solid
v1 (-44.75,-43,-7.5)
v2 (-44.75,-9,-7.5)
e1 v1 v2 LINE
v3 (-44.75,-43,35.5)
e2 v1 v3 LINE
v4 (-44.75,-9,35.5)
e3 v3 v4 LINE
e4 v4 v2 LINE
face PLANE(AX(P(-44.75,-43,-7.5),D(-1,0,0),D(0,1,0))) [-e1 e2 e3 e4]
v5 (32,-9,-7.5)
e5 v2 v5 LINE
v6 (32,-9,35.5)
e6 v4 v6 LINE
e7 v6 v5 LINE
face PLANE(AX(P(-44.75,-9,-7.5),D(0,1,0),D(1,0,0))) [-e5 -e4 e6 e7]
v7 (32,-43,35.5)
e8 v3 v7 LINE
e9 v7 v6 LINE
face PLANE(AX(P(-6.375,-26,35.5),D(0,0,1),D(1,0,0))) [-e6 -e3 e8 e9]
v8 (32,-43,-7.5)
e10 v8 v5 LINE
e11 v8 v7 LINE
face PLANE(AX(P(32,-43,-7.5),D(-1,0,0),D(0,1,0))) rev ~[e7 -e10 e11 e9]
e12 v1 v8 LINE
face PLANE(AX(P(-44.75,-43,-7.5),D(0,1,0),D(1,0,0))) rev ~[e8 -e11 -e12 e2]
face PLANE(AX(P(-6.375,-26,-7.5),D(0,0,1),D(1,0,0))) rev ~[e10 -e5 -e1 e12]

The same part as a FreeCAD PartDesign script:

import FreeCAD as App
import Part
import Sketcher
from FreeCAD import Vector

doc = App.newDocument("Part")
body = doc.addObject("PartDesign::Body", "Body")

# Sketch on XY plane
sketch1 = body.newObject("Sketcher::SketchObject", "Sketch")
sketch1.AttachmentSupport = (doc.getObject("XY_Plane"), [""])
sketch1.MapMode = "FlatFace"
sketch1.AttachmentOffset = App.Placement(Vector(0, 0, -3), App.Rotation())
sketch1.addGeometry(Part.LineSegment(Vector(-45, -9, 0), Vector(-45, -43, 0)), False)
sketch1.addGeometry(Part.LineSegment(Vector(-45, -43, 0), Vector(32, -43, 0)), False)
sketch1.addGeometry(Part.LineSegment(Vector(32, -43, 0), Vector(32, -9, 0)), False)
sketch1.addGeometry(Part.LineSegment(Vector(32, -9, 0), Vector(-45, -9, 0)), False)
sketch1.addConstraint(Sketcher.Constraint("Coincident", 0, 2, 1, 1))
sketch1.addConstraint(Sketcher.Constraint("Coincident", 1, 2, 2, 1))
sketch1.addConstraint(Sketcher.Constraint("Coincident", 2, 2, 3, 1))
sketch1.addConstraint(Sketcher.Constraint("Coincident", 3, 2, 0, 1))
sketch1.addConstraint(Sketcher.Constraint("Vertical", 0))
sketch1.addConstraint(Sketcher.Constraint("Horizontal", 1))
sketch1.addConstraint(Sketcher.Constraint("Vertical", 2))
sketch1.addConstraint(Sketcher.Constraint("Horizontal", 3))
sketch1.addConstraint(Sketcher.Constraint("DistanceY", 0, 2, 0, 1, 34.0))
sketch1.addConstraint(Sketcher.Constraint("DistanceY", 0, 2, -1, 1, 43.0))
sketch1.addConstraint(Sketcher.Constraint("DistanceX", -1, 1, 1, 2, 32.0))
sketch1.addConstraint(Sketcher.Constraint("DistanceX", 1, 1, 1, 2, 76.75))
pad1 = body.newObject("PartDesign::Pad", "Pad")
pad1.Profile = sketch1
pad1.Length = 34
body2 = doc.addObject("PartDesign::Body", "Body001")

# Sketch on XY plane
sketch2 = body2.newObject("Sketcher::SketchObject", "Sketch001")
sketch2.AttachmentSupport = (doc.getObject("XY_Plane001"), [""])
sketch2.MapMode = "FlatFace"
sketch2.AttachmentOffset = App.Placement(Vector(0, 0, -7.5), App.Rotation())
sketch2.addGeometry(Part.LineSegment(Vector(-45, -9, 0), Vector(-45, -43, 0)), False)
sketch2.addGeometry(Part.LineSegment(Vector(-45, -43, 0), Vector(32, -43, 0)), False)
sketch2.addGeometry(Part.LineSegment(Vector(32, -43, 0), Vector(32, -9, 0)), False)
sketch2.addGeometry(Part.LineSegment(Vector(32, -9, 0), Vector(-45, -9, 0)), False)
sketch2.addConstraint(Sketcher.Constraint("Coincident", 0, 2, 1, 1))
sketch2.addConstraint(Sketcher.Constraint("Coincident", 1, 2, 2, 1))
sketch2.addConstraint(Sketcher.Constraint("Coincident", 2, 2, 3, 1))
sketch2.addConstraint(Sketcher.Constraint("Coincident", 3, 2, 0, 1))
sketch2.addConstraint(Sketcher.Constraint("Vertical", 0))
sketch2.addConstraint(Sketcher.Constraint("Horizontal", 1))
sketch2.addConstraint(Sketcher.Constraint("Vertical", 2))
sketch2.addConstraint(Sketcher.Constraint("Horizontal", 3))
sketch2.addConstraint(Sketcher.Constraint("DistanceY", 0, 2, 0, 1, 34.0))
sketch2.addConstraint(Sketcher.Constraint("DistanceY", 0, 2, -1, 1, 43.0))
sketch2.addConstraint(Sketcher.Constraint("DistanceX", -1, 1, 1, 2, 32.0))
sketch2.addConstraint(Sketcher.Constraint("DistanceX", 1, 1, 1, 2, 76.75))
pad2 = body2.newObject("PartDesign::Pad", "Pad001")
pad2.Profile = sketch2
pad2.Length = 43
body3 = doc.addObject("PartDesign::Body", "Body002")

# Sketch on XY plane
sketch3 = body3.newObject("Sketcher::SketchObject", "Sketch002")
sketch3.AttachmentSupport = (doc.getObject("XY_Plane002"), [""])
sketch3.MapMode = "FlatFace"
sketch3.AttachmentOffset = App.Placement(Vector(0, 0, -3), App.Rotation())
sketch3.addGeometry(Part.LineSegment(Vector(-8, -9, 0), Vector(-8, -43, 0)), False)
sketch3.addGeometry(Part.LineSegment(Vector(-8, -43, 0), Vector(32, -43, 0)), False)
sketch3.addGeometry(Part.LineSegment(Vector(32, -43, 0), Vector(32, -9, 0)), False)
sketch3.addGeometry(Part.LineSegment(Vector(32, -9, 0), Vector(-8, -9, 0)), False)
sketch3.addConstraint(Sketcher.Constraint("Coincident", 0, 2, 1, 1))
sketch3.addConstraint(Sketcher.Constraint("Coincident", 1, 2, 2, 1))
sketch3.addConstraint(Sketcher.Constraint("Coincident", 2, 2, 3, 1))
sketch3.addConstraint(Sketcher.Constraint("Coincident", 3, 2, 0, 1))
sketch3.addConstraint(Sketcher.Constraint("Vertical", 0))
sketch3.addConstraint(Sketcher.Constraint("Horizontal", 1))
sketch3.addConstraint(Sketcher.Constraint("Vertical", 2))
sketch3.addConstraint(Sketcher.Constraint("Horizontal", 3))
sketch3.addConstraint(Sketcher.Constraint("DistanceX", 1, 1, 1, 2, 40.0))
sketch3.addConstraint(Sketcher.Constraint("DistanceY", 0, 2, 0, 1, 34.0))
sketch3.addConstraint(Sketcher.Constraint("DistanceX", 0, 2, -1, 1, 8.0))
sketch3.addConstraint(Sketcher.Constraint("DistanceY", 0, 2, -1, 1, 43.0))
pad3 = body3.newObject("PartDesign::Pad", "Pad002")
pad3.Profile = sketch3
pad3.Length = 34
doc.recompute()

boolean = body3.newObject("PartDesign::Boolean", "Boolean")
boolean.Type = "Fuse"
boolean.addObjects([body])
doc.recompute()

boolean2 = body3.newObject("PartDesign::Boolean", "Boolean001")
boolean2.Type = "Fuse"
boolean2.addObjects([body2])

doc.recompute()
